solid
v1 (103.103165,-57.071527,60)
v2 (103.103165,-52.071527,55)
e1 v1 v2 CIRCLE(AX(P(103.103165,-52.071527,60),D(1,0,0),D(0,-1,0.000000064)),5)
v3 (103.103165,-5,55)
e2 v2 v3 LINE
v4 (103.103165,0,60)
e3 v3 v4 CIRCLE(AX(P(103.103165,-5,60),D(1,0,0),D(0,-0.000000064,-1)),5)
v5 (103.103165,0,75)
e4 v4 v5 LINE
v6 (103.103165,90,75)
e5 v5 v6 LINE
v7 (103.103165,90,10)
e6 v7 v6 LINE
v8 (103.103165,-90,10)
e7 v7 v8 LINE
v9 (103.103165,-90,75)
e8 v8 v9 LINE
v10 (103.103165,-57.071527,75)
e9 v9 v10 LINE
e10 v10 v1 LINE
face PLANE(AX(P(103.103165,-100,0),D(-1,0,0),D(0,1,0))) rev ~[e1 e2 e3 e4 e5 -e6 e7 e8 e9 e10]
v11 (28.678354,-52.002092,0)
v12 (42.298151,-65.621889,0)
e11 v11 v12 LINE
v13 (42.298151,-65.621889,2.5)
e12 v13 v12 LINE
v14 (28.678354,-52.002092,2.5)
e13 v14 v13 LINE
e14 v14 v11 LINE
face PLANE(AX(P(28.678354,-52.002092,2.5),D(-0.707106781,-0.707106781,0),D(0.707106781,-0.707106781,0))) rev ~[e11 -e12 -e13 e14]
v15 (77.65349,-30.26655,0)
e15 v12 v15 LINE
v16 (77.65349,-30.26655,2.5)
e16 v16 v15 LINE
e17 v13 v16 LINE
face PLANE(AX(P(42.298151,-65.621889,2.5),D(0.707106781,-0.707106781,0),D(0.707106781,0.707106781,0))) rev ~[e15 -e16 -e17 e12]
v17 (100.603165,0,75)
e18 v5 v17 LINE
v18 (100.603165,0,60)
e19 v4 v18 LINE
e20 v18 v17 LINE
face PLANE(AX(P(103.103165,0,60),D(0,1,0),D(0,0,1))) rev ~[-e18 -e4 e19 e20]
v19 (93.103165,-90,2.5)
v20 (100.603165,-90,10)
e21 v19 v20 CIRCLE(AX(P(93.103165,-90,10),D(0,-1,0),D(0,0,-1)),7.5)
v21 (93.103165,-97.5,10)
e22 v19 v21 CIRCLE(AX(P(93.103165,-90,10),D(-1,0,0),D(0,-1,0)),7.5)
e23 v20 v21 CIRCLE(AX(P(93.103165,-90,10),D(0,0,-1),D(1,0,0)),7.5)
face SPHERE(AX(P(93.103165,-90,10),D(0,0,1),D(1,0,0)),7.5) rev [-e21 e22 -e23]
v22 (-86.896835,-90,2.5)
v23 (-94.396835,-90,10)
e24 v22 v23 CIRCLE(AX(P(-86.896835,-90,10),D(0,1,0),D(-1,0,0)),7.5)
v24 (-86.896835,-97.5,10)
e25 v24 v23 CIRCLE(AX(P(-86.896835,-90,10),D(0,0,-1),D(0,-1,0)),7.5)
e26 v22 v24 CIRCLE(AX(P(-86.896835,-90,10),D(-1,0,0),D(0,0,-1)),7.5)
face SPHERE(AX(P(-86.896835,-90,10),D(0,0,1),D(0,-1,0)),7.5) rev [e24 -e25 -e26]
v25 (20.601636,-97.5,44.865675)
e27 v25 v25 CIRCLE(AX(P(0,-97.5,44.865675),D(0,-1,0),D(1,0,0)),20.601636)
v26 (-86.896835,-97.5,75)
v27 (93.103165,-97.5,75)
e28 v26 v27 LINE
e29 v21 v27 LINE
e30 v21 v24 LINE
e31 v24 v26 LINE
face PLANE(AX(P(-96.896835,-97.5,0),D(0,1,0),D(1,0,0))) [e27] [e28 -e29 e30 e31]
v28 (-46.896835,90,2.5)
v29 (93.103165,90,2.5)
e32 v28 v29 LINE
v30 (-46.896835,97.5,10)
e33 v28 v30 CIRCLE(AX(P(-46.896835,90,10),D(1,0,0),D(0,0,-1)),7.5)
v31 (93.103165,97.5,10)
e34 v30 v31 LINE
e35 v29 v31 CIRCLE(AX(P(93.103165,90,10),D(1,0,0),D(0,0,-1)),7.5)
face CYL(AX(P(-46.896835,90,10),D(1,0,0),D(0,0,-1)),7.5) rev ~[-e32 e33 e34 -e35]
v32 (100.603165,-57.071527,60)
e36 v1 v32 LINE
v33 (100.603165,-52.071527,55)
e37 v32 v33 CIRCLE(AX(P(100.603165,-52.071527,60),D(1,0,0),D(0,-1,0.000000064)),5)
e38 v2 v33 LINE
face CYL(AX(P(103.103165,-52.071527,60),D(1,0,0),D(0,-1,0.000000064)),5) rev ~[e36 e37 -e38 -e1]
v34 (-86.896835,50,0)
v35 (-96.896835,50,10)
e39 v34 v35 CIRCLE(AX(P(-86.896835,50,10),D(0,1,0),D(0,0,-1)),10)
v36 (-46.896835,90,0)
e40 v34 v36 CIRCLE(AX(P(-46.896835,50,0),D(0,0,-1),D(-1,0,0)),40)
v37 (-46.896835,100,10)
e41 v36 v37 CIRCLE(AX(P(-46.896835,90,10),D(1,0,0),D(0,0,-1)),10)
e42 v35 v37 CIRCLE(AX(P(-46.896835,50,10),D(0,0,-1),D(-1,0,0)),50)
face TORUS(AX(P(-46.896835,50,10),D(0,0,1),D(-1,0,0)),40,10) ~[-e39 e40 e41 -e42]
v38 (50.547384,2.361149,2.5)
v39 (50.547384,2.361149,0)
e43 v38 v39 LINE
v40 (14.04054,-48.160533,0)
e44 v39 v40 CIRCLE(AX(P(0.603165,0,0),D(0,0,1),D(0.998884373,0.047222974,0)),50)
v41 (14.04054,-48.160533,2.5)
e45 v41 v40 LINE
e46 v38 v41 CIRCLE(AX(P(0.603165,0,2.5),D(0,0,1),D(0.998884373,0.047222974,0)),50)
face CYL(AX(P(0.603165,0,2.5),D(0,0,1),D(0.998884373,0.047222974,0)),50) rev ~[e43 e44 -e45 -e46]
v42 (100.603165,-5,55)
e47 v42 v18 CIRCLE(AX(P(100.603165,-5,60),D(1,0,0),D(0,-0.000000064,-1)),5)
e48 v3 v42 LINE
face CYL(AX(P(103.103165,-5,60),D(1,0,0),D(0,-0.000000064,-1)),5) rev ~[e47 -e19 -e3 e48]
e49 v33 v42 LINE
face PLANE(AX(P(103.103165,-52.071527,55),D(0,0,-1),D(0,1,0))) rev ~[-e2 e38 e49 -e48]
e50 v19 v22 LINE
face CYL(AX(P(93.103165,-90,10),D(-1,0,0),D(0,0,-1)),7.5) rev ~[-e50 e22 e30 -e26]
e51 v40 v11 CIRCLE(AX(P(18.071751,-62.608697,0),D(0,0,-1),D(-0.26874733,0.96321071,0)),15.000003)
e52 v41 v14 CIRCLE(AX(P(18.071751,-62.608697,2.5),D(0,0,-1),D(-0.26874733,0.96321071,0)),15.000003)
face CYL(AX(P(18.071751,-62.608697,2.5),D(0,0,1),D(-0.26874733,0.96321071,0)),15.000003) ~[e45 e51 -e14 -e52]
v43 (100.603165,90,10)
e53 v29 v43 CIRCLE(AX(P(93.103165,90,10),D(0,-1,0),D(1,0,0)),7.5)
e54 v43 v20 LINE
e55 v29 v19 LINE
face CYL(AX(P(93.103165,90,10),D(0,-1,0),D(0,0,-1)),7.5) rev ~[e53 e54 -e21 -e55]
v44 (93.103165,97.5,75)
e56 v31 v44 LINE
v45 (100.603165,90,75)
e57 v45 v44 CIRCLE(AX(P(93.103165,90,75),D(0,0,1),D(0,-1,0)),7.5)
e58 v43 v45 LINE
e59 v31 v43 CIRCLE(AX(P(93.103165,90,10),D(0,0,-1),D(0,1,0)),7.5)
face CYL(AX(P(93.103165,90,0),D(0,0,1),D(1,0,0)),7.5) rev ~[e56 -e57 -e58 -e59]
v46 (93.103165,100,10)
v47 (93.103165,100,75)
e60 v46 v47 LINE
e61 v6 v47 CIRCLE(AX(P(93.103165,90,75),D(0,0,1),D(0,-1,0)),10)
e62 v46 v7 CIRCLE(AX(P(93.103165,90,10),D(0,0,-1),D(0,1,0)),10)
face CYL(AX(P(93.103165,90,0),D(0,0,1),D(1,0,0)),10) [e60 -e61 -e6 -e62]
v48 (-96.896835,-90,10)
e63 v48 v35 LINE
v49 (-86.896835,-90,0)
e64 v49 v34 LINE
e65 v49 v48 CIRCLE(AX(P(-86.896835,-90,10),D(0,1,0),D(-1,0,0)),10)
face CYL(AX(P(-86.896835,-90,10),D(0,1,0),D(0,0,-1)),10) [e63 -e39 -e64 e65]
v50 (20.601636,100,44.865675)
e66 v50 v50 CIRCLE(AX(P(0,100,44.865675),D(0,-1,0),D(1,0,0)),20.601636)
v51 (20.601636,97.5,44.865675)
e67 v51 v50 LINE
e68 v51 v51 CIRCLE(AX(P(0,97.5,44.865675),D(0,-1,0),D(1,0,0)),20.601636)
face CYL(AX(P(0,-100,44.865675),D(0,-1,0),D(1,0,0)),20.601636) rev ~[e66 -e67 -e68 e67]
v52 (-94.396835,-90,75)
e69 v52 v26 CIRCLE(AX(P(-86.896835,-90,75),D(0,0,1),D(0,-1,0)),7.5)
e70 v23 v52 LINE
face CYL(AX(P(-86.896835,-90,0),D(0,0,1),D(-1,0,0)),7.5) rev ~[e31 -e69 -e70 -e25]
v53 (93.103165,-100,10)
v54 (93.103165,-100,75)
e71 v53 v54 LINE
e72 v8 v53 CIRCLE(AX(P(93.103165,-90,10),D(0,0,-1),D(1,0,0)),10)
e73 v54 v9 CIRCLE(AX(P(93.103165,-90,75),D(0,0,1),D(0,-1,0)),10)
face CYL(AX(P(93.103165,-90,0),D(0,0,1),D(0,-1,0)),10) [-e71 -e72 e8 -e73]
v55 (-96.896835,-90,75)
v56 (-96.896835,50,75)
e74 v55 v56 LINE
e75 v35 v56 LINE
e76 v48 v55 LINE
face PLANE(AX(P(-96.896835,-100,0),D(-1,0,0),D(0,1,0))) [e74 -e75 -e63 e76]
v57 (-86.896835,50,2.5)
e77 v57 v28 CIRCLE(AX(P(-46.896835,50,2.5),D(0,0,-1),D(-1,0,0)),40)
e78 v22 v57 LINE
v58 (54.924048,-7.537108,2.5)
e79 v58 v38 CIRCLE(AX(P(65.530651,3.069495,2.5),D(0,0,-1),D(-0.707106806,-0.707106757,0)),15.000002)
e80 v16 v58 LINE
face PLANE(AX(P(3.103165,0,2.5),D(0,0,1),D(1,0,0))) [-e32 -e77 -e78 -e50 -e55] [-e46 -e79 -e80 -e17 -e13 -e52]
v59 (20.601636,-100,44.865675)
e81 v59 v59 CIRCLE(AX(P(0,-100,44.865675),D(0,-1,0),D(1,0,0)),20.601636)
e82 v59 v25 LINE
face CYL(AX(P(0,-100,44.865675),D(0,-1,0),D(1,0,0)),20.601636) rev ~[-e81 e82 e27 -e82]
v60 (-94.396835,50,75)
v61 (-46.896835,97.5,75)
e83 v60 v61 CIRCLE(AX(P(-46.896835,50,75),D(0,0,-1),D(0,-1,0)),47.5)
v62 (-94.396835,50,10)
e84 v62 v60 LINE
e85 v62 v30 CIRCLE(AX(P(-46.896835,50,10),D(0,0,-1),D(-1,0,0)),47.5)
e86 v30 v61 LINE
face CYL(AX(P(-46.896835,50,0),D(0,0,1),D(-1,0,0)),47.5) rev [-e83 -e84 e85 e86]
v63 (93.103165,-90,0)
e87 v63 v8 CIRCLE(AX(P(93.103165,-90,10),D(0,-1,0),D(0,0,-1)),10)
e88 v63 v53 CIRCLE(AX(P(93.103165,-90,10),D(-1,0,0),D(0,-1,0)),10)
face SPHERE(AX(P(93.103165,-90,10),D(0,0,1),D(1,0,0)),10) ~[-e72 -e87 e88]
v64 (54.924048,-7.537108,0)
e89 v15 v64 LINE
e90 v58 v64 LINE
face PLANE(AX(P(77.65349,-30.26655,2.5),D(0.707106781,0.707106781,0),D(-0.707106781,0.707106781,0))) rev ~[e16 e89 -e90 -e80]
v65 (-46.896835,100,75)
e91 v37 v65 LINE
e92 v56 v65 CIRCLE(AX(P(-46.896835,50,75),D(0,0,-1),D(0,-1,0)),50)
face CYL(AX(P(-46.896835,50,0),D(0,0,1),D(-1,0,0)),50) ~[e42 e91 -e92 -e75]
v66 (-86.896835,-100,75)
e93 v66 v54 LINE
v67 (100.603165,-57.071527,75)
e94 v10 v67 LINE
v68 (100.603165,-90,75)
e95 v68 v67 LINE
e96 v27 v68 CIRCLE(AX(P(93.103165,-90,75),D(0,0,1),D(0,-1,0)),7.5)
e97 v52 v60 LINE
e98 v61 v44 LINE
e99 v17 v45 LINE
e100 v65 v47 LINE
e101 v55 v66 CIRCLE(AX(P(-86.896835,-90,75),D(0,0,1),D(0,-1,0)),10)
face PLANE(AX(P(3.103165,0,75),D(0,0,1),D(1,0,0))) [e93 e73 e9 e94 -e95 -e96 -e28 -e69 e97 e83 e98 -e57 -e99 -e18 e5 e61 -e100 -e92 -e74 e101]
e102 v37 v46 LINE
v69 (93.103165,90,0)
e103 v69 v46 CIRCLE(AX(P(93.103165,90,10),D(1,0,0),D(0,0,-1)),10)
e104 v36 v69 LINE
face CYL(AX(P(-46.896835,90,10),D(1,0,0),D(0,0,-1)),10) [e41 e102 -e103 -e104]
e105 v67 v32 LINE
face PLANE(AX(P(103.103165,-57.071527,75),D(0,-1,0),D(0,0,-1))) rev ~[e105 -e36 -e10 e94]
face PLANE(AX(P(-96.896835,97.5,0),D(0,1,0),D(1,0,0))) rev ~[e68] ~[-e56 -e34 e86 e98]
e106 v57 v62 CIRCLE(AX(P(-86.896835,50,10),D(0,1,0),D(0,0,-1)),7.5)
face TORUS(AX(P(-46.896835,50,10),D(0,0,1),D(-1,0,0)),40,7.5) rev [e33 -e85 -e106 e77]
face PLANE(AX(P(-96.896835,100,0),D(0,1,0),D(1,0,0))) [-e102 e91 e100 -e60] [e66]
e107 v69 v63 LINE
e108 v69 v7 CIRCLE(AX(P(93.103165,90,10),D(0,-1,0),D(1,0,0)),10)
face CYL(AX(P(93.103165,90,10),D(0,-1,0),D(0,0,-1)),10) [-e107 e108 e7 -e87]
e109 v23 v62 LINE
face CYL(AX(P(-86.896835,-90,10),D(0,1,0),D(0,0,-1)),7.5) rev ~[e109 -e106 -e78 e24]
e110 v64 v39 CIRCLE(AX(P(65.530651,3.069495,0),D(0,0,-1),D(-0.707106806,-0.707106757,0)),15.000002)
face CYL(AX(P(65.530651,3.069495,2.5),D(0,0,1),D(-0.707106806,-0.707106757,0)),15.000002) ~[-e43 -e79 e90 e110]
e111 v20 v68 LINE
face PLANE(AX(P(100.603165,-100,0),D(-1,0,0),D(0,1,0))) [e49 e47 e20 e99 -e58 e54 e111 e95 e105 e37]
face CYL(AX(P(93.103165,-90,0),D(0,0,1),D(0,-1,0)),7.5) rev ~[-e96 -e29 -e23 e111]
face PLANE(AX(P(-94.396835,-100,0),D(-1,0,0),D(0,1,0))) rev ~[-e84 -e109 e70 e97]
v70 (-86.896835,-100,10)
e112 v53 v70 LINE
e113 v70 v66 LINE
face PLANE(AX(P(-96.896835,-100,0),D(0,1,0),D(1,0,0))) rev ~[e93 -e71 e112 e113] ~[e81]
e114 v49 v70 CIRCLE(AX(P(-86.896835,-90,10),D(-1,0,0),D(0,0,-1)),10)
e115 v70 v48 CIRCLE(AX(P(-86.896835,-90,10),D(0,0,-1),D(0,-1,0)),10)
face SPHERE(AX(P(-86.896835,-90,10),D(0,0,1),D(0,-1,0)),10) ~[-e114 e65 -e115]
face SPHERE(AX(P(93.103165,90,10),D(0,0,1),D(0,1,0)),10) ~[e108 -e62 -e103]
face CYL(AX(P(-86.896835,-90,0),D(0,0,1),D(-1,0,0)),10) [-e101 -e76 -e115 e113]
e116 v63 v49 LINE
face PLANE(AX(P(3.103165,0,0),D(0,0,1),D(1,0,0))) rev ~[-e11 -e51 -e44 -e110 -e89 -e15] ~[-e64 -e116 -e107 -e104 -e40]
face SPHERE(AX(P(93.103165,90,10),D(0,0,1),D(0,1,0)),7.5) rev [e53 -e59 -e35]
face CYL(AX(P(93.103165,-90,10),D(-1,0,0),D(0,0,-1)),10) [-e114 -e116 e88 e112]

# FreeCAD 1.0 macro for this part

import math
import FreeCAD as App
import Part
import Sketcher
from FreeCAD import Vector
Q = App.Units.Quantity


def edges_at(feature, points):
    """Names of the edges that pass closest to the given points."""
    edges = feature.Shape.Edges
    near = lambda p: min(range(len(edges)), key=lambda i: edges[i].distToShape(Part.Vertex(*p))[0])
    return sorted({f"Edge{near(p) + 1}" for p in points})


def faces_at(feature, points):
    """Names of the faces that lie closest to the given points."""
    faces = feature.Shape.Faces
    near = lambda p: min(range(len(faces)), key=lambda i: faces[i].distToShape(Part.Vertex(*p))[0])
    return sorted({f"Face{near(p) + 1}" for p in points})

doc = App.newDocument("Part")
body = doc.addObject("PartDesign::Body", "Body")

# Sketch on XY plane
sketch1 = body.newObject("Sketcher::SketchObject", "Sketch")
sketch1.AttachmentSupport = (doc.getObject("XY_Plane"), [""])
sketch1.MapMode = "FlatFace"
sketch1.addGeometry([
    Part.LineSegment(Vector(-97, 100, 0), Vector(-97, -100, 0)),
    Part.LineSegment(Vector(-97, -100, 0), Vector(103, -100, 0)),
    Part.LineSegment(Vector(103, -100, 0), Vector(103, 100, 0)),
    Part.LineSegment(Vector(103, 100, 0), Vector(-97, 100, 0)),
], False)
sketch1.addConstraint([
    Sketcher.Constraint("Coincident", 0, 2, 1, 1),
    Sketcher.Constraint("Coincident", 1, 2, 2, 1),
    Sketcher.Constraint("Coincident", 2, 2, 3, 1),
    Sketcher.Constraint("Coincident", 3, 2, 0, 1),
    Sketcher.Constraint("Vertical", 0),
    Sketcher.Constraint("Horizontal", 1),
    Sketcher.Constraint("Vertical", 2),
    Sketcher.Constraint("Horizontal", 3),
    Sketcher.Constraint("Equal", 3, 0),
    Sketcher.Constraint("DistanceX", 1, 1, 1, 2, Q("200 mm")),
    Sketcher.Constraint("DistanceY", 0, 2, -1, 1, Q("100 mm")),
    Sketcher.Constraint("DistanceX", 0, 2, -1, 1, Q("96.896835 mm")),
])
pad1 = body.newObject("PartDesign::Pad", "Pad")
pad1.Profile = sketch1
pad1.Length = 75
doc.recompute()

fillet = body.newObject("PartDesign::Fillet", "Fillet")
fillet.Base = (pad1, edges_at(pad1, [(-96.897, -100, 37.5), (103.103, -100, 37.5), (103.103, 100, 37.5)]))
fillet.Radius = 10
doc.recompute()

fillet2 = body.newObject("PartDesign::Fillet", "Fillet001")
fillet2.Base = (fillet, edges_at(fillet, [(-96.897, 100, 37.5)]))
fillet2.Radius = 50
doc.recompute()

fillet3 = body.newObject("PartDesign::Fillet", "Fillet002")
fillet3.Base = (fillet2, edges_at(fillet2, [(23.103, 100, 0)]))
fillet3.Radius = 10
doc.recompute()

thickness = body.newObject("PartDesign::Thickness", "Thickness")
thickness.Base = (fillet3, faces_at(fillet3, [(3.103, 0, 75)]))
thickness.Value = 2.5
thickness.Reversed = True
thickness.Join = "Arc"

# Sketch on XZ plane
sketch2 = body.newObject("Sketcher::SketchObject", "Sketch001")
sketch2.AttachmentSupport = (doc.getObject("XZ_Plane"), [""])
sketch2.MapMode = "FlatFace"
sketch2.AttachmentOffset = App.Placement(Vector(0, 0, 100), App.Rotation())
sketch2.addGeometry(Part.Circle(Vector(0, 45, 0), Vector(0, 0, 1), 21), False)
sketch2.addConstraint([
    Sketcher.Constraint("PointOnObject", 0, 3, -2),
    Sketcher.Constraint("Diameter", 0, Q("41.203272 mm")),
    Sketcher.Constraint("DistanceY", -1, 1, 0, 3, Q("44.865675 mm")),
])
pocket1 = body.newObject("PartDesign::Pocket", "Pocket")
pocket1.Profile = sketch2
pocket1.Type = "ThroughAll"

# Sketch on XY plane
sketch3 = body.newObject("Sketcher::SketchObject", "Sketch002")
sketch3.AttachmentSupport = (doc.getObject("XY_Plane"), [""])
sketch3.MapMode = "FlatFace"
sketch3.AttachmentOffset = App.Placement(Vector(0, 0, 2.5), App.Rotation())
sketch3.addGeometry([
    Part.ArcOfCircle(Part.Circle(Vector(66, 3, 0), Vector(0, 0, 1), 15), math.radians(-177), math.radians(-135)),  # 0
    Part.ArcOfCircle(Part.Circle(Vector(1, 0, 0), Vector(0, 0, 1), 50), math.radians(3), math.radians(286)),  # 1
    Part.ArcOfCircle(Part.Circle(Vector(18, -63, 0), Vector(0, 0, 1), 15), math.radians(45), math.radians(106)),  # 2
    Part.LineSegment(Vector(29, -52, 0), Vector(42, -66, 0)),  # 3
    Part.LineSegment(Vector(42, -66, 0), Vector(78, -30, 0)),  # 4
    Part.LineSegment(Vector(78, -30, 0), Vector(55, -8, 0)),  # 5
], False)
sketch3.addConstraint([
    Sketcher.Constraint("Tangent", 0, 1, 1, 1),
    Sketcher.Constraint("Tangent", 1, 2, 2, 2),
    Sketcher.Constraint("Tangent", 2, 1, 3, 1),
    Sketcher.Constraint("Coincident", 3, 2, 4, 1),
    Sketcher.Constraint("Coincident", 4, 2, 5, 1),
    Sketcher.Constraint("Tangent", 5, 2, 0, 2),
    Sketcher.Constraint("Equal", 0, 2),
    Sketcher.Constraint("PointOnObject", 1, 3, -1),
    Sketcher.Constraint("Perpendicular", 3, 4),
    Sketcher.Constraint("Perpendicular", 4, 5),
    Sketcher.Constraint("Radius", 0, Q("15.000002 mm")),
    Sketcher.Constraint("Radius", 1, Q("50 mm")),
    Sketcher.Constraint("Angle", 3, Q("-45 deg")),
    Sketcher.Constraint("Distance", 4, Q("50 mm")),
    Sketcher.Constraint("Distance", 3, Q("19.261302 mm")),
    Sketcher.Constraint("DistanceX", 2, 3, 0, 3, Q("47.458901 mm")),
    Sketcher.Constraint("DistanceX", -1, 1, 0, 3, Q("65.530651 mm")),
])
pocket2 = body.newObject("PartDesign::Pocket", "Pocket001")
pocket2.Profile = sketch3
pocket2.Type = "ThroughAll"

# Sketch on YZ plane
sketch4 = body.newObject("Sketcher::SketchObject", "Sketch003")
sketch4.AttachmentSupport = (doc.getObject("YZ_Plane"), [""])
sketch4.MapMode = "FlatFace"
sketch4.AttachmentOffset = App.Placement(Vector(0, 0, 103.103165), App.Rotation())
sketch4.addGeometry([
    Part.ArcOfCircle(Part.Circle(Vector(-52.1, 60, 0), Vector(0, 0, 1), 5), math.radians(180), math.radians(270)),  # 0
    Part.LineSegment(Vector(-52.1, 55, 0), Vector(-5, 55, 0)),  # 1
    Part.ArcOfCircle(Part.Circle(Vector(-5, 60, 0), Vector(0, 0, 1), 5), math.radians(-90), math.radians(0)),  # 2
    Part.LineSegment(Vector(0, 60, 0), Vector(0, 75, 0)),  # 3
    Part.LineSegment(Vector(0, 75, 0), Vector(-57.1, 75, 0)),  # 4
    Part.LineSegment(Vector(-57.1, 75, 0), Vector(-57.1, 60, 0)),  # 5
], False)
sketch4.addConstraint([
    Sketcher.Constraint("Tangent", 0, 2, 1, 1),
    Sketcher.Constraint("Tangent", 1, 2, 2, 1),
    Sketcher.Constraint("Tangent", 2, 2, 3, 1),
    Sketcher.Constraint("Coincident", 3, 2, 4, 1),
    Sketcher.Constraint("Coincident", 4, 2, 5, 1),
    Sketcher.Constraint("Tangent", 5, 2, 0, 1),
    Sketcher.Constraint("Horizontal", 1),
    Sketcher.Constraint("Vertical", 3),
    Sketcher.Constraint("Horizontal", 4),
    Sketcher.Constraint("Vertical", 5),
    Sketcher.Constraint("Equal", 0, 2),
    Sketcher.Constraint("PointOnObject", 2, 2, -2),
    Sketcher.Constraint("Radius", 0, Q("5 mm")),
    Sketcher.Constraint("DistanceY", 3, 1, 3, 2, Q("15 mm")),
    Sketcher.Constraint("DistanceY", -1, 1, 0, 3, Q("60 mm")),
    Sketcher.Constraint("DistanceX", 1, 1, 1, 2, Q("47.071527 mm")),
])
pocket3 = body.newObject("PartDesign::Pocket", "Pocket002")
pocket3.Profile = sketch4
pocket3.Length = 2.5

doc.recompute()
